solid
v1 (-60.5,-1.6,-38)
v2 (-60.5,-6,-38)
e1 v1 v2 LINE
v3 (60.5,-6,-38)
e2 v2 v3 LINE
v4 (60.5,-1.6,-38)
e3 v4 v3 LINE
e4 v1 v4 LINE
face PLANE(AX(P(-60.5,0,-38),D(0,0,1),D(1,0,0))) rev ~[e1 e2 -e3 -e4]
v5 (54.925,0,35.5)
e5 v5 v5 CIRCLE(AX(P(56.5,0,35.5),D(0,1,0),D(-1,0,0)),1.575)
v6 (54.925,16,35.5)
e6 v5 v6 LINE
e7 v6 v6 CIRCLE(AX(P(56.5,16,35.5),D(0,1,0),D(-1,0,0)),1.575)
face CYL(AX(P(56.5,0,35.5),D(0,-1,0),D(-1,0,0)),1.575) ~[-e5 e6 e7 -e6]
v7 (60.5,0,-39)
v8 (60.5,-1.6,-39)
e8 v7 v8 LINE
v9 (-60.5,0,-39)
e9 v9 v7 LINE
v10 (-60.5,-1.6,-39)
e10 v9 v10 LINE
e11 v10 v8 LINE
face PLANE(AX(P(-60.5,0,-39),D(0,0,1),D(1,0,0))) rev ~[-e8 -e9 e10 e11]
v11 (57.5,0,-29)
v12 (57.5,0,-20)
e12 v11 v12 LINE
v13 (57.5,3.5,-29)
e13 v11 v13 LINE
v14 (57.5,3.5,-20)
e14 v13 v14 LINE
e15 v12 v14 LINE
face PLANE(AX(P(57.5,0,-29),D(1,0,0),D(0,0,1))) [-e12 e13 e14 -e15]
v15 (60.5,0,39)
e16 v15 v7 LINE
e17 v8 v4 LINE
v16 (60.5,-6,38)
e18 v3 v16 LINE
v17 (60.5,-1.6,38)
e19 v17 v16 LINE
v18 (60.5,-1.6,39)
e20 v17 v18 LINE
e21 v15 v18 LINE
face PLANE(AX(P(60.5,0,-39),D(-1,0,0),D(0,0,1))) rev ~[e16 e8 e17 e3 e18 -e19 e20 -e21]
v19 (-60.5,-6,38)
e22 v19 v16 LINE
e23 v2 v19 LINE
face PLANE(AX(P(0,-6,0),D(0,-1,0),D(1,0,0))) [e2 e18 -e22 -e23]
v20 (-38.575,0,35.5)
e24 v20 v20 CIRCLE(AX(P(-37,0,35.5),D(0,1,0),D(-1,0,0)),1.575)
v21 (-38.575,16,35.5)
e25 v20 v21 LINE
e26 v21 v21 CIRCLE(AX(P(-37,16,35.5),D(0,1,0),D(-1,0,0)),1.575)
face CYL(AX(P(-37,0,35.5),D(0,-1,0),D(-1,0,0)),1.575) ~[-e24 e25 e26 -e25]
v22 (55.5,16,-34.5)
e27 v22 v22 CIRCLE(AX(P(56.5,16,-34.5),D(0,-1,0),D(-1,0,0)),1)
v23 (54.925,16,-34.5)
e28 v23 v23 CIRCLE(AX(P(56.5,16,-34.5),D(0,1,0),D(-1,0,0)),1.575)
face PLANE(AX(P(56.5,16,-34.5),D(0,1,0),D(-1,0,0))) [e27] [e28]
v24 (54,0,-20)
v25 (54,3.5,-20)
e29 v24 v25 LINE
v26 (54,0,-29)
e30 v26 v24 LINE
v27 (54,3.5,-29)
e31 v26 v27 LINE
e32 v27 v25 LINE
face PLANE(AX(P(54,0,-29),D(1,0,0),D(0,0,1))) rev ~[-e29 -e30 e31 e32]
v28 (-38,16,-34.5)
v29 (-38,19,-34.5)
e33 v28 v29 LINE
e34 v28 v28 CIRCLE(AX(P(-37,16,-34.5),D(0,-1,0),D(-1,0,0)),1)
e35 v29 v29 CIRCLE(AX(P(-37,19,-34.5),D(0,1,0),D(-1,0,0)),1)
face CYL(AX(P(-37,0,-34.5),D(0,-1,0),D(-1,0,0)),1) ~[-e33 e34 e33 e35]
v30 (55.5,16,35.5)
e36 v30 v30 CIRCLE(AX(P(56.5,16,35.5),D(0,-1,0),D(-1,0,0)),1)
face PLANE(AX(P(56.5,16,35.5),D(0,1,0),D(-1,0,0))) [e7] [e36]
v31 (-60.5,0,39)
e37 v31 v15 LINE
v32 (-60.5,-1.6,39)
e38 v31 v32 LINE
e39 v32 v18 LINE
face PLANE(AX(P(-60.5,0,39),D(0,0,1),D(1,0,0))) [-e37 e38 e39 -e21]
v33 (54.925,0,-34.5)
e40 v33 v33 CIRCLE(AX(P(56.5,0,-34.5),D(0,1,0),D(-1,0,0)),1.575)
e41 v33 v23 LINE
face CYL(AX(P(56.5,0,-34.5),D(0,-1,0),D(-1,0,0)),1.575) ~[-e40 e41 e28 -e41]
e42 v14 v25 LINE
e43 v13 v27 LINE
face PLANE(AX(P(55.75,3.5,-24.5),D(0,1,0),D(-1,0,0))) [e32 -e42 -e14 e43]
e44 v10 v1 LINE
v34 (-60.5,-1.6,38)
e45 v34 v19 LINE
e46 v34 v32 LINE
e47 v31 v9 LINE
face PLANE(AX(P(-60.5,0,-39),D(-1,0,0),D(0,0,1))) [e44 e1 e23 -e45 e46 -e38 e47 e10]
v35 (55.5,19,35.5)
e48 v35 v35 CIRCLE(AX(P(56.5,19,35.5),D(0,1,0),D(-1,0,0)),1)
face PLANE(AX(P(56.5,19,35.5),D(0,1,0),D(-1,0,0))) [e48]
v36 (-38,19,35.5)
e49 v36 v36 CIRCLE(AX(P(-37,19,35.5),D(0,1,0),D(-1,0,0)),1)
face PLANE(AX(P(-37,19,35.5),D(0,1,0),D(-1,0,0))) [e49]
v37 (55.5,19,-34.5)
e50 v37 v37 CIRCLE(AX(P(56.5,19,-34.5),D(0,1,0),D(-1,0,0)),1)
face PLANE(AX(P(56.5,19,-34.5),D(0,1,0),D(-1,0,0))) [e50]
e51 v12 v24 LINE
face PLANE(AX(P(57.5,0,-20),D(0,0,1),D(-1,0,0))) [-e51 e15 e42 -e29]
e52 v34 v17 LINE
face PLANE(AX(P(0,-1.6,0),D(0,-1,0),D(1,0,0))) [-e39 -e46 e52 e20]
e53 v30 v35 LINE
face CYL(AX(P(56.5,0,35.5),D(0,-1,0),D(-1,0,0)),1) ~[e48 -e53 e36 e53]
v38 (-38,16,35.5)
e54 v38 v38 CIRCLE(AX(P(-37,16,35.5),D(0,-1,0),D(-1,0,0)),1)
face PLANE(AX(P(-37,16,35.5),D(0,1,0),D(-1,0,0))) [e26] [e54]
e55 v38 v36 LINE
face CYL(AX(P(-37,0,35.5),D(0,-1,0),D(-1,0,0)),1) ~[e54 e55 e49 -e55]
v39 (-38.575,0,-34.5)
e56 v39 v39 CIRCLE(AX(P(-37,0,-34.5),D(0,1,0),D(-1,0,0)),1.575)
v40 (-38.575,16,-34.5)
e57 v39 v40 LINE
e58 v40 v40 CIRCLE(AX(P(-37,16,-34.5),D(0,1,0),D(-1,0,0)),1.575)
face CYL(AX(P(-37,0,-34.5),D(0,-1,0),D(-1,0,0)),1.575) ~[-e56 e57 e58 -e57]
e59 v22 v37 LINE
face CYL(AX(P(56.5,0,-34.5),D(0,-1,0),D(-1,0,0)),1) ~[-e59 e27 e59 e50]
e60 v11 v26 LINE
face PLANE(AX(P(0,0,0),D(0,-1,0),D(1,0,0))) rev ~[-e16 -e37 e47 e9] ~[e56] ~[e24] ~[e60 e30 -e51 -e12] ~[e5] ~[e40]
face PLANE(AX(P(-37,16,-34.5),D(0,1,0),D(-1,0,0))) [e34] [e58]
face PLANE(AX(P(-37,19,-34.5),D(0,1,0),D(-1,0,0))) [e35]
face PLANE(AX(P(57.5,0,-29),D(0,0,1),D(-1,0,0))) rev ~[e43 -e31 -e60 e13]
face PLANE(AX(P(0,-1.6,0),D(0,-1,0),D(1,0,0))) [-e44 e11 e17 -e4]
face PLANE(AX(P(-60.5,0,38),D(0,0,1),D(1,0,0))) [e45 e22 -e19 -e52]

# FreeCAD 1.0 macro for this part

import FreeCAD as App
import Part
import Sketcher
from FreeCAD import Vector


def add_polygon(sketch, points):
    """Adds a closed chain of lines whose ends are joined by coincident constraints."""
    first, n = sketch.GeometryCount, len(points)
    for a, b in zip(points, points[1:] + points[:1]):
        sketch.addGeometry(Part.LineSegment(App.Vector(*a, 0), App.Vector(*b, 0)), False)
    for i in range(n):
        sketch.addConstraint(Sketcher.Constraint("Coincident", first + i, 2, first + (i + 1) % n, 1))

doc = App.newDocument("Part")
body = doc.addObject("PartDesign::Body", "Body")

# Sketch on XZ plane
sketch1 = body.newObject("Sketcher::SketchObject", "Sketch")
sketch1.AttachmentSupport = (doc.getObject("XZ_Plane"), [""])
sketch1.MapMode = "FlatFace"
add_polygon(sketch1, [(-60, 38), (-60, -38), (60, -38), (60, 38)])  # lines 0-3
sketch1.addConstraint([
    Sketcher.Constraint("Vertical", 0),
    Sketcher.Constraint("Horizontal", 1),
    Sketcher.Constraint("Vertical", 2),
    Sketcher.Constraint("Horizontal", 3),
    Sketcher.Constraint("Symmetric", 0, 2, 2, 2, -1, 1),
    Sketcher.Constraint("DistanceX", 1, 1, 1, 2, 121.0),
    Sketcher.Constraint("DistanceY", 0, 2, 0, 1, 76.0),
])
pad1 = body.newObject("PartDesign::Pad", "Pad")
pad1.Profile = sketch1
pad1.Length = 6

# Sketch on XZ plane
sketch2 = body.newObject("Sketcher::SketchObject", "Sketch001")
sketch2.AttachmentSupport = (doc.getObject("XZ_Plane"), [""])
sketch2.MapMode = "FlatFace"
add_polygon(sketch2, [(-60, 39), (-60, -39), (60, -39), (60, 39)])  # lines 0-3
sketch2.addConstraint([
    Sketcher.Constraint("Vertical", 0),
    Sketcher.Constraint("Horizontal", 1),
    Sketcher.Constraint("Vertical", 2),
    Sketcher.Constraint("Horizontal", 3),
    Sketcher.Constraint("Symmetric", 0, 2, 2, 2, -1, 1),
    Sketcher.Constraint("DistanceX", 1, 1, 1, 2, 121.0),
    Sketcher.Constraint("DistanceY", 0, 2, 0, 1, 78.0),
])
pad2 = body.newObject("PartDesign::Pad", "Pad001")
pad2.Profile = sketch2
pad2.Length = 1.6

# Sketch on XZ plane
sketch3 = body.newObject("Sketcher::SketchObject", "Sketch002")
sketch3.AttachmentSupport = (doc.getObject("XZ_Plane"), [""])
sketch3.MapMode = "FlatFace"
sketch3.addGeometry([
    Part.Circle(Vector(56.5, 35.5, 0), Vector(0, 0, 1), 1),
    Part.Circle(Vector(56.5, -34.5, 0), Vector(0, 0, 1), 1),
    Part.Circle(Vector(-37, -34.5, 0), Vector(0, 0, 1), 1),
    Part.Circle(Vector(-37, 35.5, 0), Vector(0, 0, 1), 1),
], False)
sketch3.addConstraint([
    Sketcher.Constraint("Equal", 0, 1),
    Sketcher.Constraint("Equal", 1, 2),
    Sketcher.Constraint("Equal", 2, 3),
    Sketcher.Constraint("Horizontal", 1, 3, 2, 3),
    Sketcher.Constraint("Horizontal", 0, 3, 3, 3),
    Sketcher.Constraint("Vertical", 0, 3, 1, 3),
    Sketcher.Constraint("Vertical", 2, 3, 3, 3),
    Sketcher.Constraint("Diameter", 0, 2.0),
    Sketcher.Constraint("DistanceX", 2, 3, -1, 1, 37.0),
    Sketcher.Constraint("DistanceY", 1, 3, 0, 3, 70.0),
    Sketcher.Constraint("DistanceX", -1, 1, 0, 3, 56.5),
    Sketcher.Constraint("DistanceY", -1, 1, 0, 3, 35.5),
])
pad3 = body.newObject("PartDesign::Pad", "Pad002")
pad3.Profile = sketch3
pad3.Length = 2
pad3.Reversed = True

# Sketch on XZ plane
sketch4 = body.newObject("Sketcher::SketchObject", "Sketch003")
sketch4.AttachmentSupport = (doc.getObject("XZ_Plane"), [""])
sketch4.MapMode = "FlatFace"
add_polygon(sketch4, [(57.5, -20), (57.5, -29), (54, -29), (54, -20)])  # lines 0-3
sketch4.addConstraint([
    Sketcher.Constraint("Vertical", 0),
    Sketcher.Constraint("Horizontal", 1),
    Sketcher.Constraint("Vertical", 2),
    Sketcher.Constraint("Horizontal", 3),
    Sketcher.Constraint("DistanceY", 0, 2, 0, 1, 9.0),
    Sketcher.Constraint("DistanceX", 1, 2, 1, 1, 3.5),
    Sketcher.Constraint("DistanceY", 0, 2, -1, 1, 29.0),
    Sketcher.Constraint("DistanceX", -1, 1, 1, 2, 54.0),
])
pad4 = body.newObject("PartDesign::Pad", "Pad003")
pad4.Profile = sketch4
pad4.Length = 3.5
pad4.Reversed = True

# Sketch on XZ plane
sketch5 = body.newObject("Sketcher::SketchObject", "Sketch004")
sketch5.AttachmentSupport = (doc.getObject("XZ_Plane"), [""])
sketch5.MapMode = "FlatFace"
sketch5.addGeometry([
    Part.Circle(Vector(56.5, 35.5, 0), Vector(0, 0, 1), 1.6),
    Part.Circle(Vector(-37, 35.5, 0), Vector(0, 0, 1), 1.6),
    Part.Circle(Vector(56.5, -34.5, 0), Vector(0, 0, 1), 1.6),
    Part.Circle(Vector(-37, -34.5, 0), Vector(0, 0, 1), 1.6),
], False)
sketch5.addConstraint([
    Sketcher.Constraint("Equal", 0, 1),
    Sketcher.Constraint("Equal", 1, 2),
    Sketcher.Constraint("Equal", 2, 3),
    Sketcher.Constraint("Horizontal", 0, 3, 1, 3),
    Sketcher.Constraint("Horizontal", 2, 3, 3, 3),
    Sketcher.Constraint("Vertical", 0, 3, 2, 3),
    Sketcher.Constraint("Vertical", 1, 3, 3, 3),
    Sketcher.Constraint("Diameter", 0, 3.15),
    Sketcher.Constraint("DistanceX", 1, 3, -1, 1, 37.0),
    Sketcher.Constraint("DistanceY", 2, 3, 0, 3, 70.0),
    Sketcher.Constraint("DistanceX", -1, 1, 0, 3, 56.5),
    Sketcher.Constraint("DistanceY", -1, 1, 0, 3, 35.5),
])
pad5 = body.newObject("PartDesign::Pad", "Pad004")
pad5.Profile = sketch5
pad5.Length = 16
pad5.Reversed = True

# Sketch on XZ plane
sketch6 = body.newObject("Sketcher::SketchObject", "Sketch005")
sketch6.AttachmentSupport = (doc.getObject("XZ_Plane"), [""])
sketch6.MapMode = "FlatFace"
sketch6.addGeometry([
    Part.Circle(Vector(-37, 35.5, 0), Vector(0, 0, 1), 1),
    Part.Circle(Vector(-37, -34.5, 0), Vector(0, 0, 1), 1),
    Part.Circle(Vector(56.5, -34.5, 0), Vector(0, 0, 1), 1),
    Part.Circle(Vector(56.5, 35.5, 0), Vector(0, 0, 1), 1),
], False)
sketch6.addConstraint([
    Sketcher.Constraint("Equal", 0, 1),
    Sketcher.Constraint("Equal", 1, 2),
    Sketcher.Constraint("Equal", 2, 3),
    Sketcher.Constraint("Horizontal", 1, 3, 2, 3),
    Sketcher.Constraint("Horizontal", 0, 3, 3, 3),
    Sketcher.Constraint("Vertical", 0, 3, 1, 3),
    Sketcher.Constraint("Vertical", 2, 3, 3, 3),
    Sketcher.Constraint("Diameter", 0, 2.0),
    Sketcher.Constraint("DistanceX", 0, 3, -1, 1, 37.0),
    Sketcher.Constraint("DistanceY", 1, 3, 0, 3, 70.0),
    Sketcher.Constraint("DistanceY", -1, 1, 0, 3, 35.5),
    Sketcher.Constraint("DistanceX", -1, 1, 2, 3, 56.5),
])
pad6 = body.newObject("PartDesign::Pad", "Pad005")
pad6.Profile = sketch6
pad6.Length = 19
pad6.Reversed = True

doc.recompute()
